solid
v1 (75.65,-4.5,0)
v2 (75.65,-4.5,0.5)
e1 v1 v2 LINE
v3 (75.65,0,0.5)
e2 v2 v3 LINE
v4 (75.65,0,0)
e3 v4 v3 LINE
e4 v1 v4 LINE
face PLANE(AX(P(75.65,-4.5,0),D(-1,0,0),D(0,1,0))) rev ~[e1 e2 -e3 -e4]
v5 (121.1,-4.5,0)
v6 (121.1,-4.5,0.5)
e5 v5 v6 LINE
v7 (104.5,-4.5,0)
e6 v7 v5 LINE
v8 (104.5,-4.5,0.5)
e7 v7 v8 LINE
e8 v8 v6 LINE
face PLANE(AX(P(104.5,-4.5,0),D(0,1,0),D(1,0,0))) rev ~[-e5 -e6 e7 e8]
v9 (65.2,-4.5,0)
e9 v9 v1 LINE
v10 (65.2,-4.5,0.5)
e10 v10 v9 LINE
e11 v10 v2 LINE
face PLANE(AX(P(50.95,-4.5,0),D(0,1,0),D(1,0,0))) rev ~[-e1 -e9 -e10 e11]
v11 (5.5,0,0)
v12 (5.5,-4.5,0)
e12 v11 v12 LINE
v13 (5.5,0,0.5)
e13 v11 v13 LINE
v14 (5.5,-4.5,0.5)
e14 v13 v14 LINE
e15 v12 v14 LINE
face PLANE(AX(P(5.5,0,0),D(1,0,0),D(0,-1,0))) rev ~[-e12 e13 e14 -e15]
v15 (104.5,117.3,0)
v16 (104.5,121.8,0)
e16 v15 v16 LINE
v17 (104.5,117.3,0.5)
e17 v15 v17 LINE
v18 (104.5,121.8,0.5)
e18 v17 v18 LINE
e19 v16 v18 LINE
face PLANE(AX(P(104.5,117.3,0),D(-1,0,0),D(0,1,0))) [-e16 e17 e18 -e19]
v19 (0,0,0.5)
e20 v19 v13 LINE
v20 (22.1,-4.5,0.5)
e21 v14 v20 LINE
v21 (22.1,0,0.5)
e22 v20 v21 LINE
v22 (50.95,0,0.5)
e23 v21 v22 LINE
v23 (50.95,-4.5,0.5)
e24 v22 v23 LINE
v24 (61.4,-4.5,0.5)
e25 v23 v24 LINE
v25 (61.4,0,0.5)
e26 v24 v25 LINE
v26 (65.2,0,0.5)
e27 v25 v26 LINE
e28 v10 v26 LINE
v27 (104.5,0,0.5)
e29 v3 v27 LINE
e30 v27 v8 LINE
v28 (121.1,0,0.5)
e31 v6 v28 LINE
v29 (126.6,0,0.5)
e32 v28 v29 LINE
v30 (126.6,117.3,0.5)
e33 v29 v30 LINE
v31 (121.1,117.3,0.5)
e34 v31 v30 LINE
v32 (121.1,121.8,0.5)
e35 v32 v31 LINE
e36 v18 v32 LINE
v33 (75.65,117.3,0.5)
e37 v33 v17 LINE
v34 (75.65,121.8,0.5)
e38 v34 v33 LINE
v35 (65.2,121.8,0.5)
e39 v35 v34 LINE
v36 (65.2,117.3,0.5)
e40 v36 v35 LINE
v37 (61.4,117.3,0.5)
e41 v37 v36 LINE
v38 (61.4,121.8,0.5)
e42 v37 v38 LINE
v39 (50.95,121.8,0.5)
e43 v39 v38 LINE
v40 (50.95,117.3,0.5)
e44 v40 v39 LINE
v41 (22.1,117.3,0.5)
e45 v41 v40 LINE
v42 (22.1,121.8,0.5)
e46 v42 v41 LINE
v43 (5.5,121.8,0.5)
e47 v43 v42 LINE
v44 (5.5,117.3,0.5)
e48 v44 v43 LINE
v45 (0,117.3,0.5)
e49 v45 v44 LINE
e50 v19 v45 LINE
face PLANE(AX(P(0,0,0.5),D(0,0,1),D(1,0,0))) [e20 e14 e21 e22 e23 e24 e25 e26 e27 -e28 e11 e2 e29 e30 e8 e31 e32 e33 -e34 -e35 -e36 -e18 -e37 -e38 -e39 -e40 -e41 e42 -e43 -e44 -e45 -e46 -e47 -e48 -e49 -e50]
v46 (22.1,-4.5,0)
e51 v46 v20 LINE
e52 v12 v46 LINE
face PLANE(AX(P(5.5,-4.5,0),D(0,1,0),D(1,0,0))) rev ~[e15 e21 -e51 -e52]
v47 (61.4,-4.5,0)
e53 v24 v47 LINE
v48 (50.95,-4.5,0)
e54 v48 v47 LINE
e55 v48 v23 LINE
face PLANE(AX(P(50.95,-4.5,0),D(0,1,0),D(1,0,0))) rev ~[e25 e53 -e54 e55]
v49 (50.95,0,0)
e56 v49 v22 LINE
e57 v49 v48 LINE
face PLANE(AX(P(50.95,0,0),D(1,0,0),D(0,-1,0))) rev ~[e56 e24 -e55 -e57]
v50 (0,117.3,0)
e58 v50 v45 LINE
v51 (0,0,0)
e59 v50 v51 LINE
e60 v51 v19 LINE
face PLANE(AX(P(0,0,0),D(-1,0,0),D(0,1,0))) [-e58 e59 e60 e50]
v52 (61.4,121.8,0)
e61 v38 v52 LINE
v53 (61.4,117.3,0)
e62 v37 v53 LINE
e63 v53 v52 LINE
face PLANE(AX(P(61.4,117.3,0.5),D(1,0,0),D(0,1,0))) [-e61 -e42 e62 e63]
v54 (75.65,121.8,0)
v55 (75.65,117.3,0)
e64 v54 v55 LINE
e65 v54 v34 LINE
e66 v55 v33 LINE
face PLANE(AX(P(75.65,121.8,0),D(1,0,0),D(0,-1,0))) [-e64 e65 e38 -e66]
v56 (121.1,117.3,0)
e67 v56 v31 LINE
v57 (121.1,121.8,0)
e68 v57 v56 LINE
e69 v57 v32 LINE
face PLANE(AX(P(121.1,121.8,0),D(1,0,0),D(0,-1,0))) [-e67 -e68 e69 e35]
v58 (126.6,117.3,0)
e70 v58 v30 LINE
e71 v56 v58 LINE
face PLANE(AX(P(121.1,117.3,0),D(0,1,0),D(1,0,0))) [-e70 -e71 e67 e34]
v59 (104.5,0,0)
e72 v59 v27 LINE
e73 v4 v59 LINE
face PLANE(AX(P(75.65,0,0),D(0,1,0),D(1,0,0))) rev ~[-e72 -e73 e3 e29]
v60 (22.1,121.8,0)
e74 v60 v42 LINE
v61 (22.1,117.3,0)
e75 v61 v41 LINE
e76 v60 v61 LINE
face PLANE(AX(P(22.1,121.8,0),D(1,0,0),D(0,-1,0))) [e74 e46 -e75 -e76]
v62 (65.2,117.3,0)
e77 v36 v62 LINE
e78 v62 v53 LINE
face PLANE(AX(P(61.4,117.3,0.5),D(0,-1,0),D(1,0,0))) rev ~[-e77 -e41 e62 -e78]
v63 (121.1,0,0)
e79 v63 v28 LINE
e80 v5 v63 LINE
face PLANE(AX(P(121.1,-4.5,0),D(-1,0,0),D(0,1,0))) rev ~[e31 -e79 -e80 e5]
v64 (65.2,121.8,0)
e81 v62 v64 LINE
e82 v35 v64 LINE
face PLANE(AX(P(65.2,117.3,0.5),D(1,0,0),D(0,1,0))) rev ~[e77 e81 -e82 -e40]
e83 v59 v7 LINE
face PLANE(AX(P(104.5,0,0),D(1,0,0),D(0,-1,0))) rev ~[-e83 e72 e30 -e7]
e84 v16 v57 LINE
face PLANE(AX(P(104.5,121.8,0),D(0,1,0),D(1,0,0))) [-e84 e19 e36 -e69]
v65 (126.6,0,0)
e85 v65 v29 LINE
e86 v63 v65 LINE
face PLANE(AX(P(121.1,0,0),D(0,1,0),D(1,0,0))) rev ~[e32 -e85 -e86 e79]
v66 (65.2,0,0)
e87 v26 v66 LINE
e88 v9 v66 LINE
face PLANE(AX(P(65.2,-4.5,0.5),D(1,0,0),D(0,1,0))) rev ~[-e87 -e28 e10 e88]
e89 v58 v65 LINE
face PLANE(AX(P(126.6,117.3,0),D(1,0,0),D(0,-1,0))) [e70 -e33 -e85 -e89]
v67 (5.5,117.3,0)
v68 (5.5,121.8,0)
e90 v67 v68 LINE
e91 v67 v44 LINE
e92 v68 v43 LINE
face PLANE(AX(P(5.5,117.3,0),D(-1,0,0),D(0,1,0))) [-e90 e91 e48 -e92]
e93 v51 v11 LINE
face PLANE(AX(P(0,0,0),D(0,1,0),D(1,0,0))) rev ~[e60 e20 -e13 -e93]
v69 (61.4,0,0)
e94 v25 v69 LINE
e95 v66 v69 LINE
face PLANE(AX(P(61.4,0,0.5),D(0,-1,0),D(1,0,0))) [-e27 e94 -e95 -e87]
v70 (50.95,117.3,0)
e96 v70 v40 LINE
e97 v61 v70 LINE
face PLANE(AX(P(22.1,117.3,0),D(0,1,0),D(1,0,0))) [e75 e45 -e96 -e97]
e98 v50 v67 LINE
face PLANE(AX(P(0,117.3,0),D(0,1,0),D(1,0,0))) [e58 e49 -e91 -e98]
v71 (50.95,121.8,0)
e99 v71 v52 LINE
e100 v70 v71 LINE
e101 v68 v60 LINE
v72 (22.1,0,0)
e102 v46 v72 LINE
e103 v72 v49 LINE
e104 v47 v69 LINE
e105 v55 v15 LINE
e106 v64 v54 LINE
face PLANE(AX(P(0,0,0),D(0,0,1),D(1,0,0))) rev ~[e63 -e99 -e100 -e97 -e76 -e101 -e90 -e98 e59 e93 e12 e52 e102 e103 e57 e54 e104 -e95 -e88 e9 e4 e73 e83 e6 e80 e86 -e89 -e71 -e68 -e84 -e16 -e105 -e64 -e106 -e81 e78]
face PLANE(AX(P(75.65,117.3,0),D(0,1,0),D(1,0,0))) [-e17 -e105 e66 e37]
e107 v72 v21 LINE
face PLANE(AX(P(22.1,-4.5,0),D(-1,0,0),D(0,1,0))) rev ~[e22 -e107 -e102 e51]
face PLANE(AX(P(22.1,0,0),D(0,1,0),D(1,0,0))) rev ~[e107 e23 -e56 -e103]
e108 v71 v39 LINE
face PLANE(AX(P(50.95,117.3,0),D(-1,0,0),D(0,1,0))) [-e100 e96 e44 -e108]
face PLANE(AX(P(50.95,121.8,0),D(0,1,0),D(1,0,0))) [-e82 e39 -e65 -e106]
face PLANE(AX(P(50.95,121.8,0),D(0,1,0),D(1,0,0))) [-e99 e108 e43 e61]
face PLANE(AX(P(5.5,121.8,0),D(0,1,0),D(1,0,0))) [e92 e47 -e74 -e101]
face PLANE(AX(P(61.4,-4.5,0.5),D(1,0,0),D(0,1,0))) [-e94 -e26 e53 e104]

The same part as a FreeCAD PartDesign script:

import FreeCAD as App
import Part
import Sketcher

V = App.Vector


def add_polygon(sketch, points):
    """Adds a closed chain of lines whose ends are joined by coincident constraints."""
    first, n = sketch.GeometryCount, len(points)
    for a, b in zip(points, points[1:] + points[:1]):
        sketch.addGeometry(Part.LineSegment(App.Vector(*a, 0), App.Vector(*b, 0)), False)
    for i in range(n):
        sketch.addConstraint(Sketcher.Constraint("Coincident", first + i, 2, first + (i + 1) % n, 1))

doc = App.newDocument("Part")
body = doc.addObject("PartDesign::Body", "Body")

# Sketch on XY plane
sketch1 = body.newObject("Sketcher::SketchObject", "Sketch")
sketch1.AttachmentSupport = (doc.getObject("XY_Plane"), [""])
sketch1.MapMode = "FlatFace"
add_polygon(sketch1, [(0, 0), (5.5, 0), (5.5, -4.5), (22.1, -4.5), (22.1, 0), (51, 0), (51, -4.5), (75.7, -4.5), (75.7, 0), (104.5, 0), (104.5, -4.5), (121.1, -4.5), (121.1, 0), (126.6, 0), (126.6, 117.3), (121.1, 117.3), (121.1, 121.8), (104.5, 121.8), (104.5, 117.3), (75.7, 117.3), (75.7, 121.8), (51, 121.8), (51, 117.3), (22.1, 117.3), (22.1, 121.8), (5.5, 121.8), (5.5, 117.3), (0, 117.3)])  # lines 0-27
sketch1.addConstraint(Sketcher.Constraint("Horizontal", 0))
sketch1.addConstraint(Sketcher.Constraint("Vertical", 1))
sketch1.addConstraint(Sketcher.Constraint("Horizontal", 2))
sketch1.addConstraint(Sketcher.Constraint("Vertical", 3))
sketch1.addConstraint(Sketcher.Constraint("Horizontal", 4))
sketch1.addConstraint(Sketcher.Constraint("Vertical", 5))
sketch1.addConstraint(Sketcher.Constraint("Horizontal", 6))
sketch1.addConstraint(Sketcher.Constraint("Vertical", 7))
sketch1.addConstraint(Sketcher.Constraint("Horizontal", 8))
sketch1.addConstraint(Sketcher.Constraint("Vertical", 9))
sketch1.addConstraint(Sketcher.Constraint("Horizontal", 10))
sketch1.addConstraint(Sketcher.Constraint("Vertical", 11))
sketch1.addConstraint(Sketcher.Constraint("Horizontal", 12))
sketch1.addConstraint(Sketcher.Constraint("Vertical", 13))
sketch1.addConstraint(Sketcher.Constraint("Horizontal", 14))
sketch1.addConstraint(Sketcher.Constraint("Vertical", 15))
sketch1.addConstraint(Sketcher.Constraint("Horizontal", 16))
sketch1.addConstraint(Sketcher.Constraint("Vertical", 17))
sketch1.addConstraint(Sketcher.Constraint("Horizontal", 18))
sketch1.addConstraint(Sketcher.Constraint("Vertical", 19))
sketch1.addConstraint(Sketcher.Constraint("Horizontal", 20))
sketch1.addConstraint(Sketcher.Constraint("Vertical", 21))
sketch1.addConstraint(Sketcher.Constraint("Horizontal", 22))
sketch1.addConstraint(Sketcher.Constraint("Vertical", 23))
sketch1.addConstraint(Sketcher.Constraint("Horizontal", 24))
sketch1.addConstraint(Sketcher.Constraint("Vertical", 25))
sketch1.addConstraint(Sketcher.Constraint("Horizontal", 26))
sketch1.addConstraint(Sketcher.Constraint("Vertical", 27))
sketch1.addConstraint(Sketcher.Constraint("Coincident", 27, 2, -1, 1))
sketch1.addConstraint(Sketcher.Constraint("PointOnObject", 3, 2, -1))
sketch1.addConstraint(Sketcher.Constraint("PointOnObject", 7, 2, -1))
sketch1.addConstraint(Sketcher.Constraint("PointOnObject", 11, 2, -1))
sketch1.addConstraint(Sketcher.Constraint("Horizontal", 2, 2, 5, 2))
sketch1.addConstraint(Sketcher.Constraint("Horizontal", 6, 2, 9, 2))
sketch1.addConstraint(Sketcher.Constraint("Horizontal", 14, 2, 17, 2))
sketch1.addConstraint(Sketcher.Constraint("Horizontal", 16, 2, 19, 2))
sketch1.addConstraint(Sketcher.Constraint("Horizontal", 18, 2, 21, 2))
sketch1.addConstraint(Sketcher.Constraint("Horizontal", 20, 2, 23, 2))
sketch1.addConstraint(Sketcher.Constraint("Horizontal", 22, 2, 25, 2))
sketch1.addConstraint(Sketcher.Constraint("Vertical", 11, 2, 14, 2))
sketch1.addConstraint(Sketcher.Constraint("Vertical", 9, 2, 16, 2))
sketch1.addConstraint(Sketcher.Constraint("Vertical", 7, 2, 18, 2))
sketch1.addConstraint(Sketcher.Constraint("Vertical", 5, 2, 20, 2))
sketch1.addConstraint(Sketcher.Constraint("Vertical", 3, 2, 22, 2))
sketch1.addConstraint(Sketcher.Constraint("Vertical", 1, 2, 24, 2))
sketch1.addConstraint(Sketcher.Constraint("Equal", 4, 8))
sketch1.addConstraint(Sketcher.Constraint("Equal", 2, 10))
sketch1.addConstraint(Sketcher.Constraint("Equal", 0, 12))
sketch1.addConstraint(Sketcher.Constraint("Equal", 11, 15))
sketch1.addConstraint(Sketcher.Constraint("DistanceX", 2, 1, 2, 2, 16.6))
sketch1.addConstraint(Sketcher.Constraint("DistanceX", 6, 1, 6, 2, 24.7))
sketch1.addConstraint(Sketcher.Constraint("DistanceY", 1, 2, 1, 1, 4.5))
sketch1.addConstraint(Sketcher.Constraint("DistanceX", -1, 1, 12, 2, 126.6))
sketch1.addConstraint(Sketcher.Constraint("DistanceX", 0, 1, 0, 2, 5.5))
sketch1.addConstraint(Sketcher.Constraint("DistanceY", 13, 1, 13, 2, 117.3))
pad1 = body.newObject("PartDesign::Pad", "Pad")
pad1.Profile = sketch1
pad1.Length = 0.5

# Sketch on XY plane
sketch2 = body.newObject("Sketcher::SketchObject", "Sketch001")
sketch2.AttachmentSupport = (doc.getObject("XY_Plane"), [""])
sketch2.MapMode = "FlatFace"
sketch2.AttachmentOffset = App.Placement(V(0, 0, 0.5), App.Rotation())
add_polygon(sketch2, [(61.4, 121.8), (61.4, 117.3), (65.2, 117.3), (65.2, 121.8)])  # lines 0-3
add_polygon(sketch2, [(61.4, 0), (61.4, -4.5), (65.2, -4.5), (65.2, 0)])  # lines 4-7
sketch2.addConstraint(Sketcher.Constraint("Vertical", 0))
sketch2.addConstraint(Sketcher.Constraint("Horizontal", 1))
sketch2.addConstraint(Sketcher.Constraint("Vertical", 2))
sketch2.addConstraint(Sketcher.Constraint("Horizontal", 3))
sketch2.addConstraint(Sketcher.Constraint("Vertical", 4))
sketch2.addConstraint(Sketcher.Constraint("Horizontal", 5))
sketch2.addConstraint(Sketcher.Constraint("Vertical", 6))
sketch2.addConstraint(Sketcher.Constraint("Horizontal", 7))
sketch2.addConstraint(Sketcher.Constraint("PointOnObject", 6, 2, -1))
sketch2.addConstraint(Sketcher.Constraint("Vertical", 3, 2, 4, 2))
sketch2.addConstraint(Sketcher.Constraint("Vertical", 2, 2, 5, 2))
sketch2.addConstraint(Sketcher.Constraint("Equal", 2, 4))
sketch2.addConstraint(Sketcher.Constraint("DistanceX", 1, 1, 1, 2, 3.8))
sketch2.addConstraint(Sketcher.Constraint("DistanceY", 0, 2, 0, 1, 4.5))
sketch2.addConstraint(Sketcher.Constraint("DistanceX", -1, 1, 0, 2, 61.4))
sketch2.addConstraint(Sketcher.Constraint("DistanceY", -1, 1, 0, 2, 117.3))
pocket1 = body.newObject("PartDesign::Pocket", "Pocket")
pocket1.Profile = sketch2
pocket1.Length = 0.5

doc.recompute()
